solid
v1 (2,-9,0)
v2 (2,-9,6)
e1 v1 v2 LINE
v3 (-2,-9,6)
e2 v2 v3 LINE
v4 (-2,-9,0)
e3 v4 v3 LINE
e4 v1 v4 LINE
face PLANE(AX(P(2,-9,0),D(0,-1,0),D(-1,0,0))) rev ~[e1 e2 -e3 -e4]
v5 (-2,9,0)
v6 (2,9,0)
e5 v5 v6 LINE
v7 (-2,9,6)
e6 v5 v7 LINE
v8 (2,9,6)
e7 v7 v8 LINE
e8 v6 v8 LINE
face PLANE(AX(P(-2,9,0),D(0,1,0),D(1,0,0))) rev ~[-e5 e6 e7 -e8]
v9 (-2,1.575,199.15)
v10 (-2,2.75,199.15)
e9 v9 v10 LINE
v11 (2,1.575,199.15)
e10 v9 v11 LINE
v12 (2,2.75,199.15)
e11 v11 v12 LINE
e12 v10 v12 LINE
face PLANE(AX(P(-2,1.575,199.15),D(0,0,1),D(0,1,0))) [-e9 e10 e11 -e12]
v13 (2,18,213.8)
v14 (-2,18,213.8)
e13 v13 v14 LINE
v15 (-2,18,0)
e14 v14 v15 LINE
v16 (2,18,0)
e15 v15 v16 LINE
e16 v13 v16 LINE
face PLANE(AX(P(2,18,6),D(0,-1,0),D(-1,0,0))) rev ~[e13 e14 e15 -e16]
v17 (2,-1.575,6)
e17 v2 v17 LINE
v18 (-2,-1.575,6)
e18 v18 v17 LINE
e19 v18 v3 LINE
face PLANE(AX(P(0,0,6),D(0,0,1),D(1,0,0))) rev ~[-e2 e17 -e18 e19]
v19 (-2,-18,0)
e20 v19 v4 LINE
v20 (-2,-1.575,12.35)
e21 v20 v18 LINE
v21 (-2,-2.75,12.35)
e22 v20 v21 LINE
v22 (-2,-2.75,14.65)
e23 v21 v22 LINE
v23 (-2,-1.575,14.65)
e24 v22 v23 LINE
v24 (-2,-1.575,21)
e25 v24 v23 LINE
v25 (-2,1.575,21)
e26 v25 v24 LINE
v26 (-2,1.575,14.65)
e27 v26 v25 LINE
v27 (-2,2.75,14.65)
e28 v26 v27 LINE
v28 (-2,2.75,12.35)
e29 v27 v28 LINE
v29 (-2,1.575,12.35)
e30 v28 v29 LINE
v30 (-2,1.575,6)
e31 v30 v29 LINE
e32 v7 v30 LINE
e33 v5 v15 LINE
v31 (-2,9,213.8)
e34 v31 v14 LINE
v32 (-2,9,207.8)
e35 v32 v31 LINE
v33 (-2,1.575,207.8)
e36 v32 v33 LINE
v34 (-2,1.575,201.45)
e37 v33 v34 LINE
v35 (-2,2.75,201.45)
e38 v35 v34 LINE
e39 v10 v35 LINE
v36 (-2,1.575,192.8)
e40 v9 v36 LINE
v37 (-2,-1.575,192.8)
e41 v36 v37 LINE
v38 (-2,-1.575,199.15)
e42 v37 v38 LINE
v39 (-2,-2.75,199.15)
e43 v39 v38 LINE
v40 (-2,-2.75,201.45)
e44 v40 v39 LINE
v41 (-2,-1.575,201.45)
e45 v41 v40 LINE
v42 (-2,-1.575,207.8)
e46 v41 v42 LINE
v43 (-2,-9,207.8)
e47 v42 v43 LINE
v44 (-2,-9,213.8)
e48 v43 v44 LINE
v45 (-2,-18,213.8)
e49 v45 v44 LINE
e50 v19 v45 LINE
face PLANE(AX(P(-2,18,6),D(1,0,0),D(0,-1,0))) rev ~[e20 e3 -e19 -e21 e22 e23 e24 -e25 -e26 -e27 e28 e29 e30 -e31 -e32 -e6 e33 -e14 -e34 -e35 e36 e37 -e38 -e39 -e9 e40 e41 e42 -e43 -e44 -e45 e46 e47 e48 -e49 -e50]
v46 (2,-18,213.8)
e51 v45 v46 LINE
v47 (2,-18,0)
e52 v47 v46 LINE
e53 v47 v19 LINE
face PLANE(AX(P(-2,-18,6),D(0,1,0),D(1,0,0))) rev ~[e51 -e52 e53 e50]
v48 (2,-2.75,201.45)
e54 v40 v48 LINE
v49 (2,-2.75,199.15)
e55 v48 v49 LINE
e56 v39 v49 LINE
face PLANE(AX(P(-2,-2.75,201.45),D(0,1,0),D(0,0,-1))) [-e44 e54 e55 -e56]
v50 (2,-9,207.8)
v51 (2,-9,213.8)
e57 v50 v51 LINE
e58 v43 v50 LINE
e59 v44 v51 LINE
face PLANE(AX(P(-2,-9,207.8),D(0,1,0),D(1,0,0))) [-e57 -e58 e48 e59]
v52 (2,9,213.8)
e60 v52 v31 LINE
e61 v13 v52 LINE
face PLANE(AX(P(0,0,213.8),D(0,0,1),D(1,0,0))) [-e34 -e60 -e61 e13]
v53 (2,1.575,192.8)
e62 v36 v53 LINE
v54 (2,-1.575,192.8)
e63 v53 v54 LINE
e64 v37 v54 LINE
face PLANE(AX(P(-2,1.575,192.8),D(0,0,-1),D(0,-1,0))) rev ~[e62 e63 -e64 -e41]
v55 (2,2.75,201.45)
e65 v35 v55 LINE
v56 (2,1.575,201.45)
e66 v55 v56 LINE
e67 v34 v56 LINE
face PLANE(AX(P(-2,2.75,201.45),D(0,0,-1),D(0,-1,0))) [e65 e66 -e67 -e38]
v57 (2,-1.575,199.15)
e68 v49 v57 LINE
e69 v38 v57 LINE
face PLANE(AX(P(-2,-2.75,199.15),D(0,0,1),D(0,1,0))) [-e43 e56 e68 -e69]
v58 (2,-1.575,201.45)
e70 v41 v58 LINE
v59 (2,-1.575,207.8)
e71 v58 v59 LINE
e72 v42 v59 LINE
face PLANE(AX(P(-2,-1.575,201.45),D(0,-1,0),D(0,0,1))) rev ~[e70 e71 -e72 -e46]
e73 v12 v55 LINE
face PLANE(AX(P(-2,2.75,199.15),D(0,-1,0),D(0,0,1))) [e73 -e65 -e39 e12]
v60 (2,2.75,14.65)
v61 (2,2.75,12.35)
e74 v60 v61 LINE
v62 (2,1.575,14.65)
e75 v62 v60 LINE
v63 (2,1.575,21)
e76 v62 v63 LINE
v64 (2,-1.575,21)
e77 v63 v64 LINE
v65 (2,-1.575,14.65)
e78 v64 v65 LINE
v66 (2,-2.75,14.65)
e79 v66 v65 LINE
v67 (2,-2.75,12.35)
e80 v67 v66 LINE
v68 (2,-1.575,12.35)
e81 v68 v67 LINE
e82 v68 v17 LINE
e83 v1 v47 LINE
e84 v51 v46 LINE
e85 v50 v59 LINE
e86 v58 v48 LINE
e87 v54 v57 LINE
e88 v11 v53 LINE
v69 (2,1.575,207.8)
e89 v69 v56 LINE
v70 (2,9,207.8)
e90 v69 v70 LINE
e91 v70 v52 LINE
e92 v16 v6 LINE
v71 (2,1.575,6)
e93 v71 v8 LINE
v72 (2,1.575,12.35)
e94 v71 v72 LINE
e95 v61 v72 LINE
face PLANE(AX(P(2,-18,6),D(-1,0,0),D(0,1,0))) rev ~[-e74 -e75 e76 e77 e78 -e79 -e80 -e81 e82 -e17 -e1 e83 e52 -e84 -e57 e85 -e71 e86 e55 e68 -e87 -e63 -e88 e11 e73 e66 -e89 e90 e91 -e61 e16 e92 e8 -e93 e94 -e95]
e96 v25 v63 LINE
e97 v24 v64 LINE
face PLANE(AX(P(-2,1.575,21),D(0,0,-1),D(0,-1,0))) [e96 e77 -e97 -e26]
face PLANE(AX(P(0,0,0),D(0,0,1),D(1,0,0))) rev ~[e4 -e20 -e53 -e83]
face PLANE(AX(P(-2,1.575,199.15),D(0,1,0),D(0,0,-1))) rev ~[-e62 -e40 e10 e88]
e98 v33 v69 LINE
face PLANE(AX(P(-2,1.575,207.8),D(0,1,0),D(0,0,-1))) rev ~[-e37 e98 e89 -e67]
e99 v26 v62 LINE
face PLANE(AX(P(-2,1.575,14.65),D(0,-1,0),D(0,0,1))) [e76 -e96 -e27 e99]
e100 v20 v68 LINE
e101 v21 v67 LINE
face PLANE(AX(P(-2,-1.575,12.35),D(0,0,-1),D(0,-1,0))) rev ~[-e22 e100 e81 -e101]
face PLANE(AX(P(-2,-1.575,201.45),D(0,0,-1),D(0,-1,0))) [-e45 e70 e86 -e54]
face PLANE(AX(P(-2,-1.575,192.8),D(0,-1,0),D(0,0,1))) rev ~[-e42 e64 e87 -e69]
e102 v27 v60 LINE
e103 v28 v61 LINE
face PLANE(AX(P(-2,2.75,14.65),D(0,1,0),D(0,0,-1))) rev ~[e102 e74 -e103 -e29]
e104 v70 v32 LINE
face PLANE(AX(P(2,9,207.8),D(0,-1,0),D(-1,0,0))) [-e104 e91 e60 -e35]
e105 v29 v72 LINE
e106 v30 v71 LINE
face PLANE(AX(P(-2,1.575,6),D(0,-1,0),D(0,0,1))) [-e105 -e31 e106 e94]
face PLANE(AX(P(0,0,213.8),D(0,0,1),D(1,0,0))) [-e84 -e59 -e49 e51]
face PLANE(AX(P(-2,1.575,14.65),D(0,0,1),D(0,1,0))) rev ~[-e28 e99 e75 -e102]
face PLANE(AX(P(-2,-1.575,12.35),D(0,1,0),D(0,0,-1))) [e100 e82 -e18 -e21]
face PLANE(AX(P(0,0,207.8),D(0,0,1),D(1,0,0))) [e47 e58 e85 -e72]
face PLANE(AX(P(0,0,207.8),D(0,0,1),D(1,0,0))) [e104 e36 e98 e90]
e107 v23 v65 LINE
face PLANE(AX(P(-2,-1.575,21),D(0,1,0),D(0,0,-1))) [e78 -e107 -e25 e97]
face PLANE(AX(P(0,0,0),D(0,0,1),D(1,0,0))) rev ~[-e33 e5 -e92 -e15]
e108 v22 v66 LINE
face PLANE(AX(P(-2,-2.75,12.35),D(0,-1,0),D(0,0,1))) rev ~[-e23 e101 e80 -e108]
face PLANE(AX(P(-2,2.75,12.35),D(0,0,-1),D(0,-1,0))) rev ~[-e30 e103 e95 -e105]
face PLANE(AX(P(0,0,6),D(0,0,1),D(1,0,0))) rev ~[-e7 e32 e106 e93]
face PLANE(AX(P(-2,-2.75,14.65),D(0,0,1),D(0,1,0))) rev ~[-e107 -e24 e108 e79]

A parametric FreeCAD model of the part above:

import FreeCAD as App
import Part
import Sketcher

V = App.Vector
Q = App.Units.Quantity


def add_polygon(sketch, points):
    """Adds a closed chain of lines whose ends are joined by coincident constraints."""
    first, n = sketch.GeometryCount, len(points)
    for a, b in zip(points, points[1:] + points[:1]):
        sketch.addGeometry(Part.LineSegment(App.Vector(*a, 0), App.Vector(*b, 0)), False)
    for i in range(n):
        sketch.addConstraint(Sketcher.Constraint("Coincident", first + i, 2, first + (i + 1) % n, 1))

doc = App.newDocument("Part")
body = doc.addObject("PartDesign::Body", "Body")
body.AllowCompound = True

# Sketch on XY plane
sketch1 = doc.addObject("Sketcher::SketchObject", "Sketch")
body.addObject(sketch1)
sketch1.AttachmentSupport = (doc.XY_Plane, [""])
sketch1.MapMode = "FlatFace"
add_polygon(sketch1, [(2, 18), (-2, 18), (-2, 9), (2, 9)])  # lines 0-3
add_polygon(sketch1, [(-2, -18), (2, -18), (2, -9), (-2, -9)])  # lines 4-7
sketch1.addConstraint([
    Sketcher.Constraint("Horizontal", 0),
    Sketcher.Constraint("Vertical", 1),
    Sketcher.Constraint("Horizontal", 2),
    Sketcher.Constraint("Vertical", 3),
    Sketcher.Constraint("Horizontal", 4),
    Sketcher.Constraint("Vertical", 5),
    Sketcher.Constraint("Horizontal", 6),
    Sketcher.Constraint("Vertical", 7),
    Sketcher.Constraint("Symmetric", 0, 2, 4, 2, -1, 1),
    Sketcher.Constraint("Symmetric", 2, 2, 6, 2, -1, 1),
    Sketcher.Constraint("Vertical", 3, 2, 4, 2),
    Sketcher.Constraint("DistanceX", 0, 2, 0, 1, Q("4 mm")),
    Sketcher.Constraint("DistanceY", 4, 2, 3, 2, Q("36 mm")),
    Sketcher.Constraint("DistanceY", 1, 2, 1, 1, Q("9 mm")),
])
pad1 = doc.addObject("PartDesign::Pad", "Pad")
body.addObject(pad1)
pad1.Profile = sketch1
pad1.Length = 6

# Sketch on XY plane
sketch2 = doc.addObject("Sketcher::SketchObject", "Sketch001")
body.addObject(sketch2)
sketch2.AttachmentSupport = (doc.XY_Plane, [""])
sketch2.MapMode = "FlatFace"
sketch2.AttachmentOffset = App.Placement(V(0, 0, 6), App.Rotation())
add_polygon(sketch2, [(-2, 18), (-2, -18), (2, -18), (2, 18)])  # lines 0-3
sketch2.addConstraint([
    Sketcher.Constraint("Vertical", 0),
    Sketcher.Constraint("Horizontal", 1),
    Sketcher.Constraint("Vertical", 2),
    Sketcher.Constraint("Horizontal", 3),
    Sketcher.Constraint("Symmetric", 0, 2, 2, 2, -1, 1),
    Sketcher.Constraint("DistanceX", 1, 1, 1, 2, Q("4 mm")),
    Sketcher.Constraint("DistanceY", 0, 2, 0, 1, Q("36 mm")),
])
pad2 = doc.addObject("PartDesign::Pad", "Pad001")
body.addObject(pad2)
pad2.Profile = sketch2
pad2.Length = 201.8

# Sketch on XY plane
sketch3 = doc.addObject("Sketcher::SketchObject", "Sketch002")
body.addObject(sketch3)
sketch3.AttachmentSupport = (doc.XY_Plane, [""])
sketch3.MapMode = "FlatFace"
sketch3.AttachmentOffset = App.Placement(V(0, 0, 207.8), App.Rotation())
add_polygon(sketch3, [(2, 9), (2, 18), (-2, 18), (-2, 9)])  # lines 0-3
add_polygon(sketch3, [(2, -9), (-2, -9), (-2, -18), (2, -18)])  # lines 4-7
sketch3.addConstraint([
    Sketcher.Constraint("Vertical", 0),
    Sketcher.Constraint("Horizontal", 1),
    Sketcher.Constraint("Vertical", 2),
    Sketcher.Constraint("Horizontal", 3),
    Sketcher.Constraint("Horizontal", 4),
    Sketcher.Constraint("Vertical", 5),
    Sketcher.Constraint("Horizontal", 6),
    Sketcher.Constraint("Vertical", 7),
    Sketcher.Constraint("Symmetric", 3, 2, 4, 2, -1, 1),
    Sketcher.Constraint("Symmetric", 1, 2, 6, 2, -1, 1),
    Sketcher.Constraint("Vertical", 2, 2, 4, 2),
    Sketcher.Constraint("DistanceX", 1, 2, 1, 1, Q("4 mm")),
    Sketcher.Constraint("DistanceY", 0, 1, 0, 2, Q("9 mm")),
    Sketcher.Constraint("DistanceY", -1, 1, 0, 2, Q("18 mm")),
])
pad3 = doc.addObject("PartDesign::Pad", "Pad002")
body.addObject(pad3)
pad3.Profile = sketch3
pad3.Length = 6

# Sketch on YZ plane
sketch4 = doc.addObject("Sketcher::SketchObject", "Sketch003")
body.addObject(sketch4)
sketch4.AttachmentSupport = (doc.YZ_Plane, [""])
sketch4.MapMode = "FlatFace"
sketch4.AttachmentOffset = App.Placement(V(0, 0, -2), App.Rotation())
add_polygon(sketch4, [(-1.6, 207.8), (1.6, 207.8), (1.6, 201.4), (2.8, 201.4), (2.8, 199.2), (1.6, 199.2), (1.6, 192.8), (-1.6, 192.8), (-1.6, 199.2), (-2.8, 199.2), (-2.8, 201.4), (-1.6, 201.4)])  # lines 0-11
add_polygon(sketch4, [(1.6, 12.3), (1.6, 6), (-1.6, 6), (-1.6, 12.3), (-2.8, 12.3), (-2.8, 14.7), (-1.6, 14.7), (-1.6, 21), (1.6, 21), (1.6, 14.7), (2.8, 14.7), (2.8, 12.3)])  # lines 12-23
sketch4.addConstraint([
    Sketcher.Constraint("Horizontal", 0),
    Sketcher.Constraint("Vertical", 1),
    Sketcher.Constraint("Horizontal", 2),
    Sketcher.Constraint("Vertical", 3),
    Sketcher.Constraint("Horizontal", 4),
    Sketcher.Constraint("Vertical", 5),
    Sketcher.Constraint("Horizontal", 6),
    Sketcher.Constraint("Vertical", 7),
    Sketcher.Constraint("Horizontal", 8),
    Sketcher.Constraint("Vertical", 9),
    Sketcher.Constraint("Horizontal", 10),
    Sketcher.Constraint("Vertical", 11),
    Sketcher.Constraint("Vertical", 12),
    Sketcher.Constraint("Horizontal", 13),
    Sketcher.Constraint("Vertical", 14),
    Sketcher.Constraint("Horizontal", 15),
    Sketcher.Constraint("Vertical", 16),
    Sketcher.Constraint("Horizontal", 17),
    Sketcher.Constraint("Vertical", 18),
    Sketcher.Constraint("Horizontal", 19),
    Sketcher.Constraint("Vertical", 20),
    Sketcher.Constraint("Horizontal", 21),
    Sketcher.Constraint("Vertical", 22),
    Sketcher.Constraint("Horizontal", 23),
    Sketcher.Constraint("Symmetric", 4, 2, 7, 2, -2),
    Sketcher.Constraint("Symmetric", 2, 2, 9, 2, -2),
    Sketcher.Constraint("Symmetric", 17, 2, 20, 2, -2),
    Sketcher.Constraint("Symmetric", 15, 2, 22, 2, -2),
    Sketcher.Constraint("Vertical", 1, 2, 4, 2),
    Sketcher.Constraint("Vertical", 7, 2, 10, 2),
    Sketcher.Constraint("Vertical", 5, 2, 12, 2),
    Sketcher.Constraint("Vertical", 11, 2, 13, 2),
    Sketcher.Constraint("Vertical", 9, 2, 15, 2),
    Sketcher.Constraint("Vertical", 14, 2, 17, 2),
    Sketcher.Constraint("Equal", 1, 5),
    Sketcher.Constraint("Equal", 11, 12),
    Sketcher.Constraint("Equal", 9, 16),
    Sketcher.Constraint("Equal", 14, 18),
    Sketcher.Constraint("DistanceY", 3, 2, 3, 1, Q("2.3 mm")),
    Sketcher.Constraint("DistanceY", 5, 2, 0, 2, Q("15 mm")),
    Sketcher.Constraint("DistanceX", 0, 1, 0, 2, Q("3.15 mm")),
    Sketcher.Constraint("DistanceX", 8, 2, 3, 2, Q("5.5 mm")),
    Sketcher.Constraint("DistanceY", -1, 1, 12, 2, Q("6 mm")),
    Sketcher.Constraint("DistanceY", -1, 1, 0, 2, Q("207.8 mm")),
])
pocket1 = doc.addObject("PartDesign::Pocket", "Pocket")
body.addObject(pocket1)
pocket1.Profile = sketch4
pocket1.Length = 6
pocket1.Reversed = True

doc.recompute()
